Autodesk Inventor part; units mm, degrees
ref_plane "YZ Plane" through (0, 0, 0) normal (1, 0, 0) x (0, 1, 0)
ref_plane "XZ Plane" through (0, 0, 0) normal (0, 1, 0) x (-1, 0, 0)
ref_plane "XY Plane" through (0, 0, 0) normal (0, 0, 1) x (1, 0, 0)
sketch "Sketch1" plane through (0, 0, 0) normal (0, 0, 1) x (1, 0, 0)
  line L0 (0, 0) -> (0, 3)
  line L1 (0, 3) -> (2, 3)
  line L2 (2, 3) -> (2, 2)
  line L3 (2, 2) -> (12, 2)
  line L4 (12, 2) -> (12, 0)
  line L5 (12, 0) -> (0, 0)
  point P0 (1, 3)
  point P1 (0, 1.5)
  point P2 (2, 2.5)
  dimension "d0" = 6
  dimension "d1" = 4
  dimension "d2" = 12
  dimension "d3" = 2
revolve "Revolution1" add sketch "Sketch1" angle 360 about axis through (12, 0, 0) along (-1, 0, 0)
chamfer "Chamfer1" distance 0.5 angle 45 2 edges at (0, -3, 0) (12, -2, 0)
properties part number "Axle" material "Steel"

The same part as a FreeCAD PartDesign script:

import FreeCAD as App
import Part
import Sketcher
Q = App.Units.Quantity


def edges_at(feature, points):
    """Names of the edges that pass closest to the given points."""
    edges = feature.Shape.Edges
    near = lambda p: min(range(len(edges)), key=lambda i: edges[i].distToShape(Part.Vertex(*p))[0])
    return sorted({f"Edge{near(p) + 1}" for p in points})

doc = App.newDocument("Part")
body = doc.addObject("PartDesign::Body", "Body")

# Sketch on XY plane
sketch1 = body.newObject("Sketcher::SketchObject", "Sketch")
sketch1.AttachmentSupport = (doc.getObject("XY_Plane"), [""])
sketch1.MapMode = "FlatFace"
sketch1.addGeometry([
    Part.LineSegment(App.Vector(0, 3, 0), App.Vector(0, 0, 0)),  # 0
    Part.LineSegment(App.Vector(0, 0, 0), App.Vector(12, 0, 0)),  # 1
    Part.LineSegment(App.Vector(12, 0, 0), App.Vector(12, 2, 0)),  # 2
    Part.LineSegment(App.Vector(12, 2, 0), App.Vector(2, 2, 0)),  # 3
    Part.LineSegment(App.Vector(2, 2, 0), App.Vector(2, 3, 0)),  # 4
    Part.LineSegment(App.Vector(2, 3, 0), App.Vector(0, 3, 0)),  # 5
], False)
sketch1.addConstraint([
    Sketcher.Constraint("Coincident", 0, 2, 1, 1),
    Sketcher.Constraint("Coincident", 1, 2, 2, 1),
    Sketcher.Constraint("Coincident", 2, 2, 3, 1),
    Sketcher.Constraint("Coincident", 3, 2, 4, 1),
    Sketcher.Constraint("Coincident", 4, 2, 5, 1),
    Sketcher.Constraint("Coincident", 5, 2, 0, 1),
    Sketcher.Constraint("Vertical", 0),
    Sketcher.Constraint("Horizontal", 1),
    Sketcher.Constraint("Vertical", 2),
    Sketcher.Constraint("Horizontal", 3),
    Sketcher.Constraint("Vertical", 4),
    Sketcher.Constraint("Horizontal", 5),
    Sketcher.Constraint("Coincident", 0, 2, -1, 1),
    Sketcher.Constraint("Equal", 5, 2),
    Sketcher.Constraint("DistanceX", 1, 1, 1, 2, Q("12 mm")),
    Sketcher.Constraint("DistanceX", 5, 2, 5, 1, Q("2 mm")),
    Sketcher.Constraint("DistanceY", 0, 2, 0, 1, Q("3 mm")),
])
revolution = body.newObject("PartDesign::Revolution", "Revolution")
revolution.Profile = sketch1
revolution.ReferenceAxis = (sketch1, ["H_Axis"])
revolution.Angle = 360
doc.recompute()

chamfer = body.newObject("PartDesign::Chamfer", "Chamfer")
chamfer.Base = (revolution, edges_at(revolution, [(0, -3, 0), (12, -2, 0)]))
chamfer.Size = 0.5

doc.recompute()
